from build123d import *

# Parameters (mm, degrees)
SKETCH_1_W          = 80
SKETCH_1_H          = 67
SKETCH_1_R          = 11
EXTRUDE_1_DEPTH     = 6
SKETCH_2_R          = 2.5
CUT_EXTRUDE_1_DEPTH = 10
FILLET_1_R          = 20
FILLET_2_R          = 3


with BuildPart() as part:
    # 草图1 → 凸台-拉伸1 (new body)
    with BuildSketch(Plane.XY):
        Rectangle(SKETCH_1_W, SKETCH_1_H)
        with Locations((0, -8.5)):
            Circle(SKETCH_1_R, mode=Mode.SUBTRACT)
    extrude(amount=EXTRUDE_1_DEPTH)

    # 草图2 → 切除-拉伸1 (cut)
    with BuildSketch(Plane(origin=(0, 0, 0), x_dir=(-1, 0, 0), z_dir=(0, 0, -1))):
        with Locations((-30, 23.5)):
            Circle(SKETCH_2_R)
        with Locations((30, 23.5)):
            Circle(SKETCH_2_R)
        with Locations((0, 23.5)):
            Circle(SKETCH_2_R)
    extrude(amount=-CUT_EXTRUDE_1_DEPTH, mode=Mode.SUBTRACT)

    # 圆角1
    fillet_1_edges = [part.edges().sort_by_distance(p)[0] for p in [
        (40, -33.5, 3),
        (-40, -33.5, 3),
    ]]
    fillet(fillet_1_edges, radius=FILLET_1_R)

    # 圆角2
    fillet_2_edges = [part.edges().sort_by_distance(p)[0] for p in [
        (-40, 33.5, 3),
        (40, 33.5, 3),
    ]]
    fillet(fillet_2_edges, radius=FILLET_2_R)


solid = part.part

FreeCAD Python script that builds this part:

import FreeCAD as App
import Part
import Sketcher
from FreeCAD import Vector


def edges_at(feature, points):
    """Names of the edges that pass closest to the given points."""
    edges = feature.Shape.Edges
    near = lambda p: min(range(len(edges)), key=lambda i: edges[i].distToShape(Part.Vertex(*p))[0])
    return sorted({f"Edge{near(p) + 1}" for p in points})

doc = App.newDocument("Part")
body = doc.addObject("PartDesign::Body", "Body")

# Sketch on XY plane
sketch1 = body.newObject("Sketcher::SketchObject", "Sketch")
sketch1.AttachmentSupport = (doc.getObject("XY_Plane"), [""])
sketch1.MapMode = "FlatFace"
sketch1.addGeometry(Part.LineSegment(Vector(-40, 34, 0), Vector(-40, -34, 0)), False)
sketch1.addGeometry(Part.LineSegment(Vector(-40, -34, 0), Vector(40, -34, 0)), False)
sketch1.addGeometry(Part.LineSegment(Vector(40, -34, 0), Vector(40, 34, 0)), False)
sketch1.addGeometry(Part.LineSegment(Vector(40, 34, 0), Vector(-40, 34, 0)), False)
sketch1.addGeometry(Part.Circle(Vector(0, -8, 0), Vector(0, 0, 1), 11), False)
sketch1.addConstraint(Sketcher.Constraint("Coincident", 0, 2, 1, 1))
sketch1.addConstraint(Sketcher.Constraint("Coincident", 1, 2, 2, 1))
sketch1.addConstraint(Sketcher.Constraint("Coincident", 2, 2, 3, 1))
sketch1.addConstraint(Sketcher.Constraint("Coincident", 3, 2, 0, 1))
sketch1.addConstraint(Sketcher.Constraint("Vertical", 0))
sketch1.addConstraint(Sketcher.Constraint("Horizontal", 1))
sketch1.addConstraint(Sketcher.Constraint("Vertical", 2))
sketch1.addConstraint(Sketcher.Constraint("Horizontal", 3))
sketch1.addConstraint(Sketcher.Constraint("Symmetric", 0, 2, 2, 2, -1, 1))
sketch1.addConstraint(Sketcher.Constraint("PointOnObject", 4, 3, -2))
sketch1.addConstraint(Sketcher.Constraint("Diameter", 4, 22.0))
sketch1.addConstraint(Sketcher.Constraint("DistanceX", 1, 1, 1, 2, 80.0))
sketch1.addConstraint(Sketcher.Constraint("DistanceY", 0, 2, 0, 1, 67.0))
sketch1.addConstraint(Sketcher.Constraint("DistanceY", 0, 2, 4, 3, 25.0))
pad1 = body.newObject("PartDesign::Pad", "Pad")
pad1.Profile = sketch1
pad1.Length = 6

# Sketch on XY plane
sketch2 = body.newObject("Sketcher::SketchObject", "Sketch001")
sketch2.AttachmentSupport = (doc.getObject("XY_Plane"), [""])
sketch2.MapMode = "FlatFace"
sketch2.addGeometry(Part.Circle(Vector(30, 23.5, 0), Vector(0, 0, 1), 2.5), False)
sketch2.addGeometry(Part.Circle(Vector(-30, 23.5, 0), Vector(0, 0, 1), 2.5), False)
sketch2.addGeometry(Part.Circle(Vector(0, 23.5, 0), Vector(0, 0, 1), 2.5), False)
sketch2.addConstraint(Sketcher.Constraint("Equal", 0, 1))
sketch2.addConstraint(Sketcher.Constraint("Equal", 1, 2))
sketch2.addConstraint(Sketcher.Constraint("Symmetric", 0, 3, 1, 3, -2))
sketch2.addConstraint(Sketcher.Constraint("PointOnObject", 2, 3, -2))
sketch2.addConstraint(Sketcher.Constraint("Horizontal", 1, 3, 2, 3))
sketch2.addConstraint(Sketcher.Constraint("Diameter", 0, 5.0))
sketch2.addConstraint(Sketcher.Constraint("DistanceX", -1, 1, 0, 3, 30.0))
sketch2.addConstraint(Sketcher.Constraint("DistanceY", -1, 1, 0, 3, 23.5))
pocket1 = body.newObject("PartDesign::Pocket", "Pocket")
pocket1.Profile = sketch2
pocket1.Length = 10
pocket1.Reversed = True
doc.recompute()

fillet = body.newObject("PartDesign::Fillet", "Fillet")
fillet.Base = (pocket1, edges_at(pocket1, [(40, -33.5, 3), (-40, -33.5, 3)]))
fillet.Radius = 20
doc.recompute()

fillet2 = body.newObject("PartDesign::Fillet", "Fillet001")
fillet2.Base = (fillet, edges_at(fillet, [(-40, 33.5, 3), (40, 33.5, 3)]))
fillet2.Radius = 3

doc.recompute()
